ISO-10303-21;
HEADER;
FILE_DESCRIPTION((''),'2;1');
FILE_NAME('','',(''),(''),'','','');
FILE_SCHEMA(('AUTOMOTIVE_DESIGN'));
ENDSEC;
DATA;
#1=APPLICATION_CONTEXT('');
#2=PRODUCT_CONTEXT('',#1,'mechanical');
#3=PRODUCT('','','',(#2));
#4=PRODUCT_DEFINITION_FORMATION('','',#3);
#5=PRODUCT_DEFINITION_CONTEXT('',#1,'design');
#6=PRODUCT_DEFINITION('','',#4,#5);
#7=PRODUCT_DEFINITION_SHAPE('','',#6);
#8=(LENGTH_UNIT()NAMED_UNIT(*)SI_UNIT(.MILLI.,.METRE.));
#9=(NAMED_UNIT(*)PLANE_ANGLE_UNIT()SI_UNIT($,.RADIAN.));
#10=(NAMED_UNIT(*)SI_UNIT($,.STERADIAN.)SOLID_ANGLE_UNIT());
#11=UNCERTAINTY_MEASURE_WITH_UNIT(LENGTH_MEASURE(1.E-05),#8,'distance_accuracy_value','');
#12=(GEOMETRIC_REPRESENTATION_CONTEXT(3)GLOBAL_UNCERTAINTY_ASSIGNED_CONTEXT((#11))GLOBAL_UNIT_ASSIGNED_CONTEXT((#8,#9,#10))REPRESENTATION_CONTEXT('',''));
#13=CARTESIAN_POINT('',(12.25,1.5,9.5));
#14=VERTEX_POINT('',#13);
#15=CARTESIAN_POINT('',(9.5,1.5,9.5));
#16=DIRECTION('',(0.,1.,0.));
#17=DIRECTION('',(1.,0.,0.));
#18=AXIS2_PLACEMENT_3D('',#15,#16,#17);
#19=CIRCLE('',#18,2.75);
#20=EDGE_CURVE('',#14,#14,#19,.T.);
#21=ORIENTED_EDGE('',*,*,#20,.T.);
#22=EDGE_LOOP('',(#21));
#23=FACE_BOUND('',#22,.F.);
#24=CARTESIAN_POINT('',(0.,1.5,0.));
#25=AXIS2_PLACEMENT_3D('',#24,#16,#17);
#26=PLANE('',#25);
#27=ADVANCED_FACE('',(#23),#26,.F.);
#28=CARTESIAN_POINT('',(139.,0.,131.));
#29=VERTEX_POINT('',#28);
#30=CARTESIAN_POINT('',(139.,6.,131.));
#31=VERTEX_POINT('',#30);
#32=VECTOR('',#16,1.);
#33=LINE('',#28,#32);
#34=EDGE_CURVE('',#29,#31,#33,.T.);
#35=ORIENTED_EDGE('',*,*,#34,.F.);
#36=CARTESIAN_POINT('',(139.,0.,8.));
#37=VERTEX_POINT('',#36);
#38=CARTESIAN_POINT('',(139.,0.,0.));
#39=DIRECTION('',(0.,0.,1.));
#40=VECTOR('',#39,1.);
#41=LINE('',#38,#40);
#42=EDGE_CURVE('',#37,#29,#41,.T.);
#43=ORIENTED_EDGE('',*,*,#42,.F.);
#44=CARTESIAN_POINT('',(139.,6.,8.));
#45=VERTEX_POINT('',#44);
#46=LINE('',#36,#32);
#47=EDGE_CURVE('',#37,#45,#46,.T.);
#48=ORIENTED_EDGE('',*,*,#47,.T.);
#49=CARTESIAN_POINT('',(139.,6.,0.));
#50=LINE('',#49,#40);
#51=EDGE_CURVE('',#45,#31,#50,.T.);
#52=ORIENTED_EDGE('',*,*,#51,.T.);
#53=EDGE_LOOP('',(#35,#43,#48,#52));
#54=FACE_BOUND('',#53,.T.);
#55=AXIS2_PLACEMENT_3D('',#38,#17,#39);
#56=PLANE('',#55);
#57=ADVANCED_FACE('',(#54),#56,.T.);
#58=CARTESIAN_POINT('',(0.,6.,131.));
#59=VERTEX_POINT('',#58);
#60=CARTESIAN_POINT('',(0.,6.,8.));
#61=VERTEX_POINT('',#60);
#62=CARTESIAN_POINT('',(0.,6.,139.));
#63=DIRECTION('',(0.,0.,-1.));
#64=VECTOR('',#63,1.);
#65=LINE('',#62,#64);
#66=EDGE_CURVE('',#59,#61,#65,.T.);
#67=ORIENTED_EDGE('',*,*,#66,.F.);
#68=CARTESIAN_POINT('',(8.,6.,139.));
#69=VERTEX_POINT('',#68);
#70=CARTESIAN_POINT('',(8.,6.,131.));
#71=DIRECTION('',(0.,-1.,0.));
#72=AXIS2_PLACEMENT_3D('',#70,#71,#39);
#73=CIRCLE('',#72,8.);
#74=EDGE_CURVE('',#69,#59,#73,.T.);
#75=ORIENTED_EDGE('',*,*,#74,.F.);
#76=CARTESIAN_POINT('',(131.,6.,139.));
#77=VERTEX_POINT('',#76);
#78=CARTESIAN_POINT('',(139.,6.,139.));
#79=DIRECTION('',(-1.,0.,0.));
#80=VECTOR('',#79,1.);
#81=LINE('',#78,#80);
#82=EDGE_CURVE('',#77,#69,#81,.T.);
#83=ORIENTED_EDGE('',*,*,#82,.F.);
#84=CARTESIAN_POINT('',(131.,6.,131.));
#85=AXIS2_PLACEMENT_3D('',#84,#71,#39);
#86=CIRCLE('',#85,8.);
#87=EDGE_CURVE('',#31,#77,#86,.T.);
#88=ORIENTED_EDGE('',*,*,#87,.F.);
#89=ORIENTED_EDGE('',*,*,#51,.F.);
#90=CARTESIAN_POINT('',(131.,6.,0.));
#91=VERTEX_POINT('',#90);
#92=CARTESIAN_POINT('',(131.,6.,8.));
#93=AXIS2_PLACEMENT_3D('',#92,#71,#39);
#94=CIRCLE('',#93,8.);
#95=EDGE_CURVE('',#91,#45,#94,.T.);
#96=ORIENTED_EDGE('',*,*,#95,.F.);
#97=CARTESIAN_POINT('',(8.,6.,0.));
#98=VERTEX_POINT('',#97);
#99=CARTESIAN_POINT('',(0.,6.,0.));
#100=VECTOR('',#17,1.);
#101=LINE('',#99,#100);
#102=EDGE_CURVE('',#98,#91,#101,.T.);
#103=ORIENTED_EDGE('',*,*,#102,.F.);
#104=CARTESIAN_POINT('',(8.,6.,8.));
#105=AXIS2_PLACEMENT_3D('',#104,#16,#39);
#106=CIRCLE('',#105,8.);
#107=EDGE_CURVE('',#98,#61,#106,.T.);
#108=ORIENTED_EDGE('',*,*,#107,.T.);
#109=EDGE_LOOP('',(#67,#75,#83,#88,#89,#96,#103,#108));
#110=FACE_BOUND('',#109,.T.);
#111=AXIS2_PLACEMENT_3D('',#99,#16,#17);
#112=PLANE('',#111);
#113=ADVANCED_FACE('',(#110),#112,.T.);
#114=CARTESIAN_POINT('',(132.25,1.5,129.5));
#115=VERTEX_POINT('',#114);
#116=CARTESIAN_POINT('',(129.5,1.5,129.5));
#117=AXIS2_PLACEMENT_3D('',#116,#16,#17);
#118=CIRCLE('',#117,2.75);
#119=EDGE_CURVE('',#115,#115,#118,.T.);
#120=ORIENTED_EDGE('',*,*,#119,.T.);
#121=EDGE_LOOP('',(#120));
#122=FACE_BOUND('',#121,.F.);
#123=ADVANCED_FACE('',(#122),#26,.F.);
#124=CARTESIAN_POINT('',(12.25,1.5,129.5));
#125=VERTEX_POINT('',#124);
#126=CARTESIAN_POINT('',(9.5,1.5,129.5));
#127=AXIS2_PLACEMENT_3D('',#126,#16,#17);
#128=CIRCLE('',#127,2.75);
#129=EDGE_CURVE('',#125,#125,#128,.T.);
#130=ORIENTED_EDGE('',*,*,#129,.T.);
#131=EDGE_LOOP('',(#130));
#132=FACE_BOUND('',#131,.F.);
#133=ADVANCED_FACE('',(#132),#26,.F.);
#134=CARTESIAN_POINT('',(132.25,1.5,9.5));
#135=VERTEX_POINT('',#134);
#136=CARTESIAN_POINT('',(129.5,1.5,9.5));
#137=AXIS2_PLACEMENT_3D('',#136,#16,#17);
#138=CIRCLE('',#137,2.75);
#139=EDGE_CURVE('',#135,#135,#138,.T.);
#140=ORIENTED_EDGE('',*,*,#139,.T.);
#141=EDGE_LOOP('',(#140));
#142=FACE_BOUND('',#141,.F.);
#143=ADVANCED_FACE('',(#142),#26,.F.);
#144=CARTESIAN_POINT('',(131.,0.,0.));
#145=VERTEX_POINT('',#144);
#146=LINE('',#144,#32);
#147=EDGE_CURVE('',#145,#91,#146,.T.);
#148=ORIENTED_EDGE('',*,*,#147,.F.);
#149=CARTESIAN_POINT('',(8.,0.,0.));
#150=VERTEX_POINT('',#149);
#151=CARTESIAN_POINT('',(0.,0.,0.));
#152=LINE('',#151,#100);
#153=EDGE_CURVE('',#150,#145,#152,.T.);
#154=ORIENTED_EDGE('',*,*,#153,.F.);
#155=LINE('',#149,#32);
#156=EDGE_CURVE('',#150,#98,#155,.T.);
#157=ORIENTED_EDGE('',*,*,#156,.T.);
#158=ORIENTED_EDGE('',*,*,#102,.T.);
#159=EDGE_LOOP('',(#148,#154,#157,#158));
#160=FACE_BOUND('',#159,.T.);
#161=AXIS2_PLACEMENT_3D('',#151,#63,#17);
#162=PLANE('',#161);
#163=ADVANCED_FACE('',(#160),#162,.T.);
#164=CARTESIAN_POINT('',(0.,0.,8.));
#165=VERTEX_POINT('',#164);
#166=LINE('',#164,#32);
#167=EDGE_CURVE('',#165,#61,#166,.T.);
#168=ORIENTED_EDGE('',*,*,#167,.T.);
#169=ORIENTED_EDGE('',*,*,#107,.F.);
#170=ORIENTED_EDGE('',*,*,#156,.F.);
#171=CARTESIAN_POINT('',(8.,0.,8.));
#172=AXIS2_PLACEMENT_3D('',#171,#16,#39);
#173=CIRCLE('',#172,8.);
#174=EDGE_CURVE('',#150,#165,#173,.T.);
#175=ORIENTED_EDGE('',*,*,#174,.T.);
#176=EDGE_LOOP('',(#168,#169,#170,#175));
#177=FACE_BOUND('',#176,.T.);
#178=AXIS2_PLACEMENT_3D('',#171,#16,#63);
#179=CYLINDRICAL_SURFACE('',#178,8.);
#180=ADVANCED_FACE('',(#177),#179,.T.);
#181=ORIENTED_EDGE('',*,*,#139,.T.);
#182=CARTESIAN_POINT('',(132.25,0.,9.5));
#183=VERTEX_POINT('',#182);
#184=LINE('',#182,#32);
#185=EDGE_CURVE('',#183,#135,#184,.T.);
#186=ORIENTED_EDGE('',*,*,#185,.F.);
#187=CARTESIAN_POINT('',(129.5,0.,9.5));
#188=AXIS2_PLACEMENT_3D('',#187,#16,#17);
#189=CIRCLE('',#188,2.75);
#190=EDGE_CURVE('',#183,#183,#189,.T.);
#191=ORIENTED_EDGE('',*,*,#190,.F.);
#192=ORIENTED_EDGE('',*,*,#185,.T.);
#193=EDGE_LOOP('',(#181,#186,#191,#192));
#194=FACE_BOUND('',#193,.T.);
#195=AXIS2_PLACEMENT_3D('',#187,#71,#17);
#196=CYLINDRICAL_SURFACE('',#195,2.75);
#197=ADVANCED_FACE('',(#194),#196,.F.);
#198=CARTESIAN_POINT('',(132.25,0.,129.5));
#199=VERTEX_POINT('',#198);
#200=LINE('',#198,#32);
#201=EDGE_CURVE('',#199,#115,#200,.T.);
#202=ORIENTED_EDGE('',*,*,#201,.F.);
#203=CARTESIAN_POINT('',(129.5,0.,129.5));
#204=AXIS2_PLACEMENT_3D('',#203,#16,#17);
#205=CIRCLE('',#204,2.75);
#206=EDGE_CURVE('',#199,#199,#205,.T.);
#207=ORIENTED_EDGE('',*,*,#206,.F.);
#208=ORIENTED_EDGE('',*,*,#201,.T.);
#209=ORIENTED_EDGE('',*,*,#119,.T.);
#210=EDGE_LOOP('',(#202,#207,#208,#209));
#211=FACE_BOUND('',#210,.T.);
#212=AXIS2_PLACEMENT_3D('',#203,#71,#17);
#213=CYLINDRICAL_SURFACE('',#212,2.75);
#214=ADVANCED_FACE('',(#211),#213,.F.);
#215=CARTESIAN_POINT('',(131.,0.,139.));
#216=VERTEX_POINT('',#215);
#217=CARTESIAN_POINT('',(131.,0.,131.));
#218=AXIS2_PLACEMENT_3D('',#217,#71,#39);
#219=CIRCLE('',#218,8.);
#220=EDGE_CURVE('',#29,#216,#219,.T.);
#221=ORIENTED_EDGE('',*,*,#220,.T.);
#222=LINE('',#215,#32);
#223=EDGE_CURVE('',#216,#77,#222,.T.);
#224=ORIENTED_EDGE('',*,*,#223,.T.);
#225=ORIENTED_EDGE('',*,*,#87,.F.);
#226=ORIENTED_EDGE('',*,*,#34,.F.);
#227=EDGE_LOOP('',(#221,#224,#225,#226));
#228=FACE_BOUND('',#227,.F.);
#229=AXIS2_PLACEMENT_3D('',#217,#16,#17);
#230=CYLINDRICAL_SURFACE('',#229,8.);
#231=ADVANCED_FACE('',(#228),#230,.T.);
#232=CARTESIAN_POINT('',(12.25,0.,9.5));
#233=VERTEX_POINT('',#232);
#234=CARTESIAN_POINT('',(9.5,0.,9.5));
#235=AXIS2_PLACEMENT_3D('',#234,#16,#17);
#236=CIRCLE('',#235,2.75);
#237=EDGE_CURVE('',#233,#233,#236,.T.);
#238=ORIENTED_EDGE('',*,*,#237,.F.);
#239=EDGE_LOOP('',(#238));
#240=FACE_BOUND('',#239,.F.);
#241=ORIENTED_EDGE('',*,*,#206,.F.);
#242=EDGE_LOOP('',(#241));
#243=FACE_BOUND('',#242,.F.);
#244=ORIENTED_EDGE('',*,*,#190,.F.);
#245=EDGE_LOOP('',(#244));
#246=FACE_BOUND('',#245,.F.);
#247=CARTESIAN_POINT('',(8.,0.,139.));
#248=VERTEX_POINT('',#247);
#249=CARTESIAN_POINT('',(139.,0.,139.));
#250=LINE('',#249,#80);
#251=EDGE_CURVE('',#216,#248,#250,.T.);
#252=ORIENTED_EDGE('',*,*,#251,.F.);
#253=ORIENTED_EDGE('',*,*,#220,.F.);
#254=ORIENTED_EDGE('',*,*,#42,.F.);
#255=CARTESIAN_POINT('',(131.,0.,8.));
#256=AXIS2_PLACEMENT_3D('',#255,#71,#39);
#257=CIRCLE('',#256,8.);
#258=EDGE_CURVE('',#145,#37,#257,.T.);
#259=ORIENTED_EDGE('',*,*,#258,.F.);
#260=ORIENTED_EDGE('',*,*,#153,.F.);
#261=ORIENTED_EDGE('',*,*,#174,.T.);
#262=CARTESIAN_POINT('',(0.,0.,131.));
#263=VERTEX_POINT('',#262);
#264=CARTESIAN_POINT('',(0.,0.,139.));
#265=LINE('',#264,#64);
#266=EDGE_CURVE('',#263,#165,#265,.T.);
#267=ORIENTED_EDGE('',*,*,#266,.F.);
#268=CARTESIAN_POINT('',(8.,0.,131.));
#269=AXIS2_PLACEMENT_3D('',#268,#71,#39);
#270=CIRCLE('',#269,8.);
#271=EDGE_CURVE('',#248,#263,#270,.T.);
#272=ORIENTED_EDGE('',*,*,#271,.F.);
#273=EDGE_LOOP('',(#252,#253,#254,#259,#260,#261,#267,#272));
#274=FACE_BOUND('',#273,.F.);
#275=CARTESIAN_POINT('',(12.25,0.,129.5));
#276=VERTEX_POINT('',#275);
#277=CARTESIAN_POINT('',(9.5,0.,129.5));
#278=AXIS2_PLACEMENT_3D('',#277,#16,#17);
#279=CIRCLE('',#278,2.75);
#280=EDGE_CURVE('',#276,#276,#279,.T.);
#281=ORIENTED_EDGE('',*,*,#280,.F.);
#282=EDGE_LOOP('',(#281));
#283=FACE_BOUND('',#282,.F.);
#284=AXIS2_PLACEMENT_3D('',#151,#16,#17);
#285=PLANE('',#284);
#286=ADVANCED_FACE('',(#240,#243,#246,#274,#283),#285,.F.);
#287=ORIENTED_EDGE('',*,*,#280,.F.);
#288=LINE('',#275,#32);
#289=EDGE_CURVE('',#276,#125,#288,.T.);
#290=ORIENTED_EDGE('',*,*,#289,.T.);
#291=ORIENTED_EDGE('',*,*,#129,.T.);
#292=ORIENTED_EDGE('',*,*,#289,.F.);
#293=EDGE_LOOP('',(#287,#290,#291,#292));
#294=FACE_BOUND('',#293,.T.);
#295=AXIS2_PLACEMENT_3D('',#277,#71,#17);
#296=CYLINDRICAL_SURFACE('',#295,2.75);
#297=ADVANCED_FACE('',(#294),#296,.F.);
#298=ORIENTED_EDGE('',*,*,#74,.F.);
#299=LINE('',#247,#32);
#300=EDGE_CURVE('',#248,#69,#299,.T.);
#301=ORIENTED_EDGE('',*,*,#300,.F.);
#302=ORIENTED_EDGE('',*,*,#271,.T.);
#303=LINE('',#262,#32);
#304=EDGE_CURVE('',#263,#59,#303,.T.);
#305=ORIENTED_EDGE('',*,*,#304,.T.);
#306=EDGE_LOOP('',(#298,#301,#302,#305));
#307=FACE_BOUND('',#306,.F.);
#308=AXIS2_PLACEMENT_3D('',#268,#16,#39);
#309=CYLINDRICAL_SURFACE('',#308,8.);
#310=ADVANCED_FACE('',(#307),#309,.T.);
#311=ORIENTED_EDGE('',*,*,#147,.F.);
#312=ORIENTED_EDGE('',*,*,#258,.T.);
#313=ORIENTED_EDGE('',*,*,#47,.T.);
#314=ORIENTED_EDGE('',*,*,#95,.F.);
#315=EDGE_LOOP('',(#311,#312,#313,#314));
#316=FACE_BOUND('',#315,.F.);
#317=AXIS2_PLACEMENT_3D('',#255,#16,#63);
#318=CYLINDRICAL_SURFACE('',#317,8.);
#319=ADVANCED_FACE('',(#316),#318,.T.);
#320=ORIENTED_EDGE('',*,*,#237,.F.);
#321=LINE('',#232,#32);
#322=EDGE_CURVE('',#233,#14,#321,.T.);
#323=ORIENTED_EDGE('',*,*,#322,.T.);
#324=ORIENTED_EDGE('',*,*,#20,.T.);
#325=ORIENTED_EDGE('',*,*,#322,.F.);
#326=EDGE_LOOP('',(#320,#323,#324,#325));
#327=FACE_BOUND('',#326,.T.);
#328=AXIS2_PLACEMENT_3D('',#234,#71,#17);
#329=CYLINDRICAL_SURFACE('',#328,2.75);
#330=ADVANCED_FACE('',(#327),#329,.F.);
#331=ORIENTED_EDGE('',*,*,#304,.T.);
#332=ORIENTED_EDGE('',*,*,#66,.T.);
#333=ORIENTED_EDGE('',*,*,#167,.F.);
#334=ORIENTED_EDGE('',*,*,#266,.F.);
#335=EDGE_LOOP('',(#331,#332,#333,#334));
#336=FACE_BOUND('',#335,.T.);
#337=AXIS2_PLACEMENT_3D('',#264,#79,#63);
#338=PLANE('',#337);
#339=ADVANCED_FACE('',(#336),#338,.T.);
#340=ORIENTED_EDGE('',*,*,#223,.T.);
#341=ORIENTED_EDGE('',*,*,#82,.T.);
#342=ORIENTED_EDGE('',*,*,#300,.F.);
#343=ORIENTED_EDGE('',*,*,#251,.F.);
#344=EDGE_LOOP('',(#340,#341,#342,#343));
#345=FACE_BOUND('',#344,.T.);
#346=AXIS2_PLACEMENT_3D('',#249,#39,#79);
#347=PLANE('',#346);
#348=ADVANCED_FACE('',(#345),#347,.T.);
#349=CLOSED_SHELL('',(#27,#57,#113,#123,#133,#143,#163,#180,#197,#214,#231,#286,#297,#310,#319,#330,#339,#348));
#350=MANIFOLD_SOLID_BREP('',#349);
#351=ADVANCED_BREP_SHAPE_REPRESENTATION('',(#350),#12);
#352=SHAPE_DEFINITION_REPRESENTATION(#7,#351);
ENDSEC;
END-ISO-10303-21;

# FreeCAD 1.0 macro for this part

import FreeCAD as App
import Part
import Sketcher
from FreeCAD import Vector


def edges_at(feature, points):
    """Names of the edges that pass closest to the given points."""
    edges = feature.Shape.Edges
    near = lambda p: min(range(len(edges)), key=lambda i: edges[i].distToShape(Part.Vertex(*p))[0])
    return sorted({f"Edge{near(p) + 1}" for p in points})


def add_polygon(sketch, points):
    """Adds a closed chain of lines whose ends are joined by coincident constraints."""
    first, n = sketch.GeometryCount, len(points)
    for a, b in zip(points, points[1:] + points[:1]):
        sketch.addGeometry(Part.LineSegment(App.Vector(*a, 0), App.Vector(*b, 0)), False)
    for i in range(n):
        sketch.addConstraint(Sketcher.Constraint("Coincident", first + i, 2, first + (i + 1) % n, 1))

doc = App.newDocument("Part")
body = doc.addObject("PartDesign::Body", "Body")

# Sketch on XZ plane
sketch1 = body.newObject("Sketcher::SketchObject", "Sketch")
sketch1.AttachmentSupport = (doc.getObject("XZ_Plane"), [""])
sketch1.MapMode = "FlatFace"
add_polygon(sketch1, [(139, 0), (0, 0), (0, 139), (139, 139)])  # lines 0-3
sketch1.addConstraint(Sketcher.Constraint("Horizontal", 0))
sketch1.addConstraint(Sketcher.Constraint("Vertical", 1))
sketch1.addConstraint(Sketcher.Constraint("Horizontal", 2))
sketch1.addConstraint(Sketcher.Constraint("Vertical", 3))
sketch1.addConstraint(Sketcher.Constraint("Coincident", 0, 2, -1, 1))
sketch1.addConstraint(Sketcher.Constraint("Equal", 2, 1))
sketch1.addConstraint(Sketcher.Constraint("DistanceX", 0, 2, 0, 1, 139.0))
pad1 = body.newObject("PartDesign::Pad", "Pad")
pad1.Profile = sketch1
pad1.Length = 6
pad1.Reversed = True
doc.recompute()

fillet = body.newObject("PartDesign::Fillet", "Fillet")
fillet.Base = (pad1, edges_at(pad1, [
    (0, 3, 139),
    (139, 3, 139),
    (139, 3, 0),
    (0, 3, 0),
]))
fillet.Radius = 8

# Sketch on XZ plane
sketch2 = body.newObject("Sketcher::SketchObject", "Sketch001")
sketch2.AttachmentSupport = (doc.getObject("XZ_Plane"), [""])
sketch2.MapMode = "FlatFace"
sketch2.addGeometry(Part.Circle(Vector(9.5, 129.5, 0), Vector(0, 0, 1), 2.8), False)
sketch2.addGeometry(Part.Circle(Vector(129.5, 129.5, 0), Vector(0, 0, 1), 2.8), False)
sketch2.addGeometry(Part.Circle(Vector(9.5, 9.5, 0), Vector(0, 0, 1), 2.8), False)
sketch2.addGeometry(Part.Circle(Vector(129.5, 9.5, 0), Vector(0, 0, 1), 2.8), False)
sketch2.addConstraint(Sketcher.Constraint("Equal", 0, 1))
sketch2.addConstraint(Sketcher.Constraint("Equal", 1, 2))
sketch2.addConstraint(Sketcher.Constraint("Equal", 2, 3))
sketch2.addConstraint(Sketcher.Constraint("Horizontal", 0, 3, 1, 3))
sketch2.addConstraint(Sketcher.Constraint("Horizontal", 2, 3, 3, 3))
sketch2.addConstraint(Sketcher.Constraint("Vertical", 0, 3, 2, 3))
sketch2.addConstraint(Sketcher.Constraint("Vertical", 1, 3, 3, 3))
sketch2.addConstraint(Sketcher.Constraint("Diameter", 0, 5.5))
sketch2.addConstraint(Sketcher.Constraint("DistanceX", -1, 1, 0, 3, 9.5))
sketch2.addConstraint(Sketcher.Constraint("DistanceY", -1, 1, 2, 3, 9.5))
sketch2.addConstraint(Sketcher.Constraint("DistanceX", 0, 3, 1, 3, 120.0))
sketch2.addConstraint(Sketcher.Constraint("DistanceY", 2, 3, 0, 3, 120.0))
pocket1 = body.newObject("PartDesign::Pocket", "Pocket")
pocket1.Profile = sketch2
pocket1.Length = 1.5

doc.recompute()
